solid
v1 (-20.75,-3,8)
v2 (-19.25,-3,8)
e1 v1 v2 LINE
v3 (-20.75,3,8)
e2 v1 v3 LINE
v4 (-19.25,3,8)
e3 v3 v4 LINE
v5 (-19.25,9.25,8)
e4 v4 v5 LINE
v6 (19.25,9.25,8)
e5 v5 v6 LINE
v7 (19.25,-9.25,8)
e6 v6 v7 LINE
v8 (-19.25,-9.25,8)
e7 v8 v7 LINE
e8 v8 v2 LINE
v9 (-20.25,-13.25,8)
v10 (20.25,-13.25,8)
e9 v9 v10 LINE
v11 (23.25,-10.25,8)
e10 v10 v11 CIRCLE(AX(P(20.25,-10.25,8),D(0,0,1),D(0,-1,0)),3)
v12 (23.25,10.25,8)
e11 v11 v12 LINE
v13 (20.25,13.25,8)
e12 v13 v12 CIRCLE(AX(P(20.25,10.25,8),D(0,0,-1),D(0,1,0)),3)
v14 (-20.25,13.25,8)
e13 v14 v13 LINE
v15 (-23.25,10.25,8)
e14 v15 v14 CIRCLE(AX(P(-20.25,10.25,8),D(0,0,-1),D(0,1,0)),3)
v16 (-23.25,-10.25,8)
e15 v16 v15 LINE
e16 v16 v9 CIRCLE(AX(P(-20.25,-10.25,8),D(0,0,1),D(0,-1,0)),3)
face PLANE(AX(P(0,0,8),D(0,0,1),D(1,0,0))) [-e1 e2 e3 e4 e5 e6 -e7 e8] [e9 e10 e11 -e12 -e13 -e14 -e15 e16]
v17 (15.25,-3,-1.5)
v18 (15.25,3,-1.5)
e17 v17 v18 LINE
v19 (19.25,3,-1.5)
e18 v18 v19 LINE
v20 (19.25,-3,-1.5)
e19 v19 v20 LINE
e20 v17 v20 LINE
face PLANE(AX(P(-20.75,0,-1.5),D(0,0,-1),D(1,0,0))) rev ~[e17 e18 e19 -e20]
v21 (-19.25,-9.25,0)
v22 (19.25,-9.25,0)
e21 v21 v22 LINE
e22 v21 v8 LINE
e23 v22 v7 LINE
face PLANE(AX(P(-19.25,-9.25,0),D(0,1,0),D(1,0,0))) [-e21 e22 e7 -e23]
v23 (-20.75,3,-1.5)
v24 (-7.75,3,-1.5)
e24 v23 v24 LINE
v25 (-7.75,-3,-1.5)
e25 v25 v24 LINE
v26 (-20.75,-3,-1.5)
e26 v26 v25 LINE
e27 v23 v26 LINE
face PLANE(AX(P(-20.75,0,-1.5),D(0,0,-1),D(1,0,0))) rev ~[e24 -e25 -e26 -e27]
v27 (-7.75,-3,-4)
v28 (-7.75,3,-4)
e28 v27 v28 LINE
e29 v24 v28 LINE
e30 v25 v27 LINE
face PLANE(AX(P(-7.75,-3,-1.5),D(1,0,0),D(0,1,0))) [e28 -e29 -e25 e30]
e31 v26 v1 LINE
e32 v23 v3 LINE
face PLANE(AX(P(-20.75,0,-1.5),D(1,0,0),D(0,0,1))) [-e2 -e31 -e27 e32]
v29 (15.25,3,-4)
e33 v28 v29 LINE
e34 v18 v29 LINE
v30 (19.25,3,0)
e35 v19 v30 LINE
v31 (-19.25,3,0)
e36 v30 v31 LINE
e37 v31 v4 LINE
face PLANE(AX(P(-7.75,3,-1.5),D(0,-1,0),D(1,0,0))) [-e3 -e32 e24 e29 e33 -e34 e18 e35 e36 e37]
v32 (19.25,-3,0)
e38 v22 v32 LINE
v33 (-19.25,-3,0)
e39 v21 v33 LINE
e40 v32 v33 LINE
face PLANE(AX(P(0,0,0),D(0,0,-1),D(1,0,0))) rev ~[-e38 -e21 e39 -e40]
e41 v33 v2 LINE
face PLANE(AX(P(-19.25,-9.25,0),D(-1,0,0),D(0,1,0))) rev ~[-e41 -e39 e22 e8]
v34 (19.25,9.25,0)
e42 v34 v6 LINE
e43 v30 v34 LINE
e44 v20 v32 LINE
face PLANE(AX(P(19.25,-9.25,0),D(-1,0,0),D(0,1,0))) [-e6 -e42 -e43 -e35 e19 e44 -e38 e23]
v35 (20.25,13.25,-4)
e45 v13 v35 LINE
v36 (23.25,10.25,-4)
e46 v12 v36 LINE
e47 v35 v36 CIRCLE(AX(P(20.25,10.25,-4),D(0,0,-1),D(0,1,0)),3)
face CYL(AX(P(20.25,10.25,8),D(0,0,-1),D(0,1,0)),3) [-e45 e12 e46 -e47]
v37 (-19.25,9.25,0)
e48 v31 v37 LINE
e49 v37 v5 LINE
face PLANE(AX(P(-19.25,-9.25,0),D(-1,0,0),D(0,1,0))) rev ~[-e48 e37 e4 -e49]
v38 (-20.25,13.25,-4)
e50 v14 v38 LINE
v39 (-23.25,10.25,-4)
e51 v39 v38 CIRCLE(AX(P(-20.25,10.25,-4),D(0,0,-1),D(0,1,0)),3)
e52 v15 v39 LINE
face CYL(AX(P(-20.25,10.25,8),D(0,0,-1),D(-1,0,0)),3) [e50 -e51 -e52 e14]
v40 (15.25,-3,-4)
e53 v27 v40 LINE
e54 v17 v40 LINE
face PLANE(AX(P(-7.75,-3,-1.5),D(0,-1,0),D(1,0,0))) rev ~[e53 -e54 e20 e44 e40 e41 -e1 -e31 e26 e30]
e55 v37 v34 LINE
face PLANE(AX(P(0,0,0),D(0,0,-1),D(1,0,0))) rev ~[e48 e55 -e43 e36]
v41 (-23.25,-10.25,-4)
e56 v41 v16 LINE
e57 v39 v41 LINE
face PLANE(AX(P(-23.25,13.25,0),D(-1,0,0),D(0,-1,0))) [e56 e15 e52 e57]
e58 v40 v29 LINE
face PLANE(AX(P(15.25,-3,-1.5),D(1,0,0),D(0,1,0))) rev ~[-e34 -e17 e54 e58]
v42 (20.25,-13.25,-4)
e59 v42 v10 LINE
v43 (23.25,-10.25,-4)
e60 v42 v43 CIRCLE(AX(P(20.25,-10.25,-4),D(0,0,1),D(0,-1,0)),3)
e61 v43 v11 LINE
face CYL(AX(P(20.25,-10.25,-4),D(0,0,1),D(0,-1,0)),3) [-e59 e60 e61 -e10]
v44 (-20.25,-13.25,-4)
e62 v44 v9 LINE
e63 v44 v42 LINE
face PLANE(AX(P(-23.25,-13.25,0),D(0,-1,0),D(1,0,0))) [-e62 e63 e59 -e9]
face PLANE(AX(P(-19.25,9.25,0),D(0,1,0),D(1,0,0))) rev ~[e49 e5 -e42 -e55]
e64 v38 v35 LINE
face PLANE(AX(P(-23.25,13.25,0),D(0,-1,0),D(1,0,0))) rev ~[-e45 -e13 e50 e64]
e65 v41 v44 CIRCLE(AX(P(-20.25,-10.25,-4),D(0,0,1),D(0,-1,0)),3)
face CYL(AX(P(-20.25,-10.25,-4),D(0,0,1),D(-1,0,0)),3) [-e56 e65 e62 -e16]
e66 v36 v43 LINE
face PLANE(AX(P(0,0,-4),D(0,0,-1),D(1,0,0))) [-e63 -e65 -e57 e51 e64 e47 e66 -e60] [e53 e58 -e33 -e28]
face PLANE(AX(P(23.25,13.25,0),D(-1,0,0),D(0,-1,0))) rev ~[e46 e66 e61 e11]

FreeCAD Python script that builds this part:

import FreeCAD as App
import Part
import Sketcher
from FreeCAD import Vector
Q = App.Units.Quantity


def edges_at(feature, points):
    """Names of the edges that pass closest to the given points."""
    edges = feature.Shape.Edges
    near = lambda p: min(range(len(edges)), key=lambda i: edges[i].distToShape(Part.Vertex(*p))[0])
    return sorted({f"Edge{near(p) + 1}" for p in points})


def add_polygon(sketch, points):
    """Adds a closed chain of lines whose ends are joined by coincident constraints."""
    first, n = sketch.GeometryCount, len(points)
    for a, b in zip(points, points[1:] + points[:1]):
        sketch.addGeometry(Part.LineSegment(App.Vector(*a, 0), App.Vector(*b, 0)), False)
    for i in range(n):
        sketch.addConstraint(Sketcher.Constraint("Coincident", first + i, 2, first + (i + 1) % n, 1))

doc = App.newDocument("Part")
body = doc.addObject("PartDesign::Body", "Body")

# Sketch on XY plane
sketch1 = body.newObject("Sketcher::SketchObject", "Sketch")
sketch1.AttachmentSupport = (doc.getObject("XY_Plane"), [""])
sketch1.MapMode = "FlatFace"
add_polygon(sketch1, [(-23, 13), (-23, -13), (23, -13), (23, 13)])  # lines 0-3
add_polygon(sketch1, [(19, -9), (-19, -9), (-19, 9), (19, 9)])  # lines 4-7
sketch1.addConstraint(Sketcher.Constraint("Vertical", 0))
sketch1.addConstraint(Sketcher.Constraint("Horizontal", 1))
sketch1.addConstraint(Sketcher.Constraint("Vertical", 2))
sketch1.addConstraint(Sketcher.Constraint("Horizontal", 3))
sketch1.addConstraint(Sketcher.Constraint("Horizontal", 4))
sketch1.addConstraint(Sketcher.Constraint("Vertical", 5))
sketch1.addConstraint(Sketcher.Constraint("Horizontal", 6))
sketch1.addConstraint(Sketcher.Constraint("Vertical", 7))
sketch1.addConstraint(Sketcher.Constraint("Symmetric", 0, 2, 2, 2, -1, 1))
sketch1.addConstraint(Sketcher.Constraint("Symmetric", 4, 2, 6, 2, -1, 1))
sketch1.addConstraint(Sketcher.Constraint("DistanceX", 1, 1, 1, 2, Q("46.5 mm")))
sketch1.addConstraint(Sketcher.Constraint("DistanceX", 4, 2, 4, 1, Q("38.5 mm")))
sketch1.addConstraint(Sketcher.Constraint("DistanceY", 0, 2, 0, 1, Q("26.5 mm")))
sketch1.addConstraint(Sketcher.Constraint("DistanceY", 5, 1, 5, 2, Q("18.5 mm")))
pad1 = body.newObject("PartDesign::Pad", "Pad")
pad1.Profile = sketch1
pad1.Length = 8

# Sketch on XY plane
sketch2 = body.newObject("Sketcher::SketchObject", "Sketch001")
sketch2.AttachmentSupport = (doc.getObject("XY_Plane"), [""])
sketch2.MapMode = "FlatFace"
add_polygon(sketch2, [(-23, -13), (-23, 13), (23, 13), (23, -13)])  # lines 0-3
sketch2.addConstraint(Sketcher.Constraint("Vertical", 0))
sketch2.addConstraint(Sketcher.Constraint("Horizontal", 1))
sketch2.addConstraint(Sketcher.Constraint("Vertical", 2))
sketch2.addConstraint(Sketcher.Constraint("Horizontal", 3))
sketch2.addConstraint(Sketcher.Constraint("Symmetric", 0, 2, 2, 2, -1, 1))
sketch2.addConstraint(Sketcher.Constraint("DistanceX", 1, 1, 1, 2, Q("46.5 mm")))
sketch2.addConstraint(Sketcher.Constraint("DistanceY", 0, 1, 0, 2, Q("26.5 mm")))
pad2 = body.newObject("PartDesign::Pad", "Pad001")
pad2.Profile = sketch2
pad2.Length = 4
pad2.Reversed = True

# Sketch on XZ plane
sketch3 = body.newObject("Sketcher::SketchObject", "Sketch002")
sketch3.AttachmentSupport = (doc.getObject("XZ_Plane"), [""])
sketch3.MapMode = "FlatFace"
add_polygon(sketch3, [(-21, 8), (-21, -2), (19, -2), (19, 8)])  # lines 0-3
sketch3.addConstraint(Sketcher.Constraint("Vertical", 0))
sketch3.addConstraint(Sketcher.Constraint("Horizontal", 1))
sketch3.addConstraint(Sketcher.Constraint("Vertical", 2))
sketch3.addConstraint(Sketcher.Constraint("Horizontal", 3))
sketch3.addConstraint(Sketcher.Constraint("DistanceX", 1, 1, 1, 2, Q("40 mm")))
sketch3.addConstraint(Sketcher.Constraint("DistanceY", 0, 2, 0, 1, Q("9.5 mm")))
sketch3.addConstraint(Sketcher.Constraint("DistanceY", -1, 1, 2, 2, Q("8 mm")))
sketch3.addConstraint(Sketcher.Constraint("DistanceX", 0, 2, -1, 1, Q("20.75 mm")))
pocket1 = body.newObject("PartDesign::Pocket", "Pocket")
pocket1.Profile = sketch3
pocket1.Length = 6
pocket1.Midplane = True

# Sketch on XY plane
sketch4 = body.newObject("Sketcher::SketchObject", "Sketch003")
sketch4.AttachmentSupport = (doc.getObject("XY_Plane"), [""])
sketch4.MapMode = "FlatFace"
sketch4.AttachmentOffset = App.Placement(Vector(0, 0, -1.5), App.Rotation())
add_polygon(sketch4, [(-8, 3), (-8, -3), (15, -3), (15, 3)])  # lines 0-3
sketch4.addConstraint(Sketcher.Constraint("Vertical", 0))
sketch4.addConstraint(Sketcher.Constraint("Horizontal", 1))
sketch4.addConstraint(Sketcher.Constraint("Vertical", 2))
sketch4.addConstraint(Sketcher.Constraint("Horizontal", 3))
sketch4.addConstraint(Sketcher.Constraint("DistanceX", 1, 1, 1, 2, Q("23 mm")))
sketch4.addConstraint(Sketcher.Constraint("DistanceY", 0, 2, 0, 1, Q("6 mm")))
sketch4.addConstraint(Sketcher.Constraint("DistanceY", 0, 2, -1, 1, Q("3 mm")))
sketch4.addConstraint(Sketcher.Constraint("DistanceX", 0, 2, -1, 1, Q("7.75 mm")))
pocket2 = body.newObject("PartDesign::Pocket", "Pocket001")
pocket2.Profile = sketch4
pocket2.Type = "ThroughAll"
doc.recompute()

fillet = body.newObject("PartDesign::Fillet", "Fillet")
fillet.Base = (pocket2, edges_at(pocket2, [
    (-23.25, -13.25, 2),
    (23.25, -13.25, 2),
    (-23.25, 13.25, 2),
    (23.25, 13.25, 2),
]))
fillet.Radius = 3

doc.recompute()
